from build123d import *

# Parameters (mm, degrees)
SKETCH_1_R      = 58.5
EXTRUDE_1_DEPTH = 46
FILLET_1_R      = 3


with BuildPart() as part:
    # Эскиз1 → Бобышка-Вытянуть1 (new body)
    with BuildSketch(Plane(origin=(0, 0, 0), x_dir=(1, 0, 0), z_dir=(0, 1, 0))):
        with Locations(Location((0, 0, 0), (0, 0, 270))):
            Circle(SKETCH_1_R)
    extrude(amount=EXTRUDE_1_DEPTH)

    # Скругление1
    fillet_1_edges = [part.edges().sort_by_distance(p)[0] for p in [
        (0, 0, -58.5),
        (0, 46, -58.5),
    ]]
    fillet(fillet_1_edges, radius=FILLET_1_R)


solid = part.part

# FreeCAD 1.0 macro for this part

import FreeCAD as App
import Part
import Sketcher
Q = App.Units.Quantity


def edges_at(feature, points):
    """Names of the edges that pass closest to the given points."""
    edges = feature.Shape.Edges
    near = lambda p: min(range(len(edges)), key=lambda i: edges[i].distToShape(Part.Vertex(*p))[0])
    return sorted({f"Edge{near(p) + 1}" for p in points})

doc = App.newDocument("Part")
body = doc.addObject("PartDesign::Body", "Body")

# Sketch on XZ plane
sketch1 = body.newObject("Sketcher::SketchObject", "Sketch")
sketch1.AttachmentSupport = (doc.getObject("XZ_Plane"), [""])
sketch1.MapMode = "FlatFace"
sketch1.addGeometry(Part.Circle(App.Vector(0, 0, 0), App.Vector(0, 0, 1), 58), False)
sketch1.addConstraint(Sketcher.Constraint("Coincident", 0, 3, -1, 1))
sketch1.addConstraint(Sketcher.Constraint("Diameter", 0, Q("117 mm")))
pad1 = body.newObject("PartDesign::Pad", "Pad")
pad1.Profile = sketch1
pad1.Length = 46
pad1.Reversed = True
doc.recompute()

fillet = body.newObject("PartDesign::Fillet", "Fillet")
fillet.Base = (pad1, edges_at(pad1, [(0, 0, -58.5), (0, 46, -58.5)]))
fillet.Radius = 3

doc.recompute()
